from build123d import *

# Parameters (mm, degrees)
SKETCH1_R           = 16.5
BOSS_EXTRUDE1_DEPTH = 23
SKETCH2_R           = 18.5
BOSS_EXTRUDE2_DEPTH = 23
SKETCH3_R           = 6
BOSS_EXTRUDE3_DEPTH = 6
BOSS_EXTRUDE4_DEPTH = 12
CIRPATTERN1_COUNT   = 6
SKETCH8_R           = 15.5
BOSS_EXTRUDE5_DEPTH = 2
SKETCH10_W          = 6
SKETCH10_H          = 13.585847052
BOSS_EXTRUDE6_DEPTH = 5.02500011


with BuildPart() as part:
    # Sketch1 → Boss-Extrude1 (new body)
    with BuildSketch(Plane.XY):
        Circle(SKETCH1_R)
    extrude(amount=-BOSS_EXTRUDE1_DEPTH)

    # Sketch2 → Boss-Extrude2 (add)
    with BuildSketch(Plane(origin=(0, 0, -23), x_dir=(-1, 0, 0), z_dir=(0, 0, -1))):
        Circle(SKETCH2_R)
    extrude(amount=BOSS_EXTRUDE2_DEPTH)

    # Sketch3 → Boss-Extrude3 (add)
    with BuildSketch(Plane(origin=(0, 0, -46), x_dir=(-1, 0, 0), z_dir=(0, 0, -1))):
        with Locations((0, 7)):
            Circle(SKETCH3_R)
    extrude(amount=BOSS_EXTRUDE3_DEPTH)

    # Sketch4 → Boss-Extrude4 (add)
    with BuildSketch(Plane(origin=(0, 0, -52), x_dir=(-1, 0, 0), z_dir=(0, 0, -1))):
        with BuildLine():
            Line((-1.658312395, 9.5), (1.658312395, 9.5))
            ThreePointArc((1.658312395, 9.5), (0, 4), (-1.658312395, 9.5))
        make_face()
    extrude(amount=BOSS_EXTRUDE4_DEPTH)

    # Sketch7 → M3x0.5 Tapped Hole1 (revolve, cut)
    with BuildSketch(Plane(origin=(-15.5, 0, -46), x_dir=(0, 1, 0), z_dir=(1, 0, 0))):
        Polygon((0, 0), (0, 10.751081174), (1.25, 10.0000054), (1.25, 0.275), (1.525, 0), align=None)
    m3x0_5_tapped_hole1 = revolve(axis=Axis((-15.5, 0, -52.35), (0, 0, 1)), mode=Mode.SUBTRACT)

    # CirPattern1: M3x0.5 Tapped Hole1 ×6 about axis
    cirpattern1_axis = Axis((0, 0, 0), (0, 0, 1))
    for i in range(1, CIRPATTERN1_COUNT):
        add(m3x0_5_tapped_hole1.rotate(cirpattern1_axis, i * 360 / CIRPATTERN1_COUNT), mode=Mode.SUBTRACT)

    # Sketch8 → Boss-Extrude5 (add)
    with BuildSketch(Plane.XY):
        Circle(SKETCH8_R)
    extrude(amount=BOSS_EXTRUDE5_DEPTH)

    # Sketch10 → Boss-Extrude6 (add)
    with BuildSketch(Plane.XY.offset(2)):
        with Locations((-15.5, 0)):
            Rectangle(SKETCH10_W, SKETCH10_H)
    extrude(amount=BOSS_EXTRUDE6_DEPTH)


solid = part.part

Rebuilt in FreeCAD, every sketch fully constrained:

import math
import FreeCAD as App
import Part
import Sketcher

V = App.Vector
Q = App.Units.Quantity


def add_polygon(sketch, points):
    """Adds a closed chain of lines whose ends are joined by coincident constraints."""
    first, n = sketch.GeometryCount, len(points)
    for a, b in zip(points, points[1:] + points[:1]):
        sketch.addGeometry(Part.LineSegment(App.Vector(*a, 0), App.Vector(*b, 0)), False)
    for i in range(n):
        sketch.addConstraint(Sketcher.Constraint("Coincident", first + i, 2, first + (i + 1) % n, 1))

doc = App.newDocument("Part")
body = doc.addObject("PartDesign::Body", "Body")

sketch1 = body.newObject("Sketcher::SketchObject", "Sketch")
sketch1.AttachmentSupport = (doc.getObject("XY_Plane"), [""])
sketch1.MapMode = "FlatFace"
sketch1.addGeometry(Part.Circle(V(0, 0, 0), V(0, 0, 1), 16), False)
sketch1.addConstraint([
    Sketcher.Constraint("Coincident", 0, 3, -1, 1),
    Sketcher.Constraint("Diameter", 0, 33.0),
])
pad1 = body.newObject("PartDesign::Pad", "Pad")
pad1.Profile = sketch1
pad1.Length = 23
pad1.Reversed = True

sketch2 = body.newObject("Sketcher::SketchObject", "Sketch001")
sketch2.AttachmentSupport = (doc.getObject("XY_Plane"), [""])
sketch2.MapMode = "FlatFace"
sketch2.AttachmentOffset = App.Placement(V(0, 0, -23), App.Rotation())
sketch2.addGeometry(Part.Circle(V(0, 0, 0), V(0, 0, 1), 18), False)
sketch2.addConstraint([
    Sketcher.Constraint("Coincident", 0, 3, -1, 1),
    Sketcher.Constraint("Diameter", 0, 37.0),
])
pad2 = body.newObject("PartDesign::Pad", "Pad001")
pad2.Profile = sketch2
pad2.Length = 23
pad2.Reversed = True

sketch3 = body.newObject("Sketcher::SketchObject", "Sketch002")
sketch3.AttachmentSupport = (doc.getObject("XY_Plane"), [""])
sketch3.MapMode = "FlatFace"
sketch3.AttachmentOffset = App.Placement(V(0, 0, -46), App.Rotation())
sketch3.addGeometry(Part.Circle(V(0, 7, 0), V(0, 0, 1), 6), False)
sketch3.addConstraint([
    Sketcher.Constraint("PointOnObject", 0, 3, -2),
    Sketcher.Constraint("Diameter", 0, 12.0),
    Sketcher.Constraint("DistanceY", -1, 1, 0, 3, 7.0),
])
pad3 = body.newObject("PartDesign::Pad", "Pad002")
pad3.Profile = sketch3
pad3.Length = 6
pad3.Reversed = True

sketch4 = body.newObject("Sketcher::SketchObject", "Sketch003")
sketch4.AttachmentSupport = (doc.getObject("XY_Plane"), [""])
sketch4.MapMode = "FlatFace"
sketch4.AttachmentOffset = App.Placement(V(0, 0, -52), App.Rotation())
sketch4.addGeometry([
    Part.LineSegment(V(-1.7, 9.5, 0), V(1.7, 9.5, 0)),
    Part.ArcOfCircle(Part.Circle(V(0, 7, 0), V(0, 0, 1), 3), math.radians(124), math.radians(416)),
], False)
sketch4.addConstraint([
    Sketcher.Constraint("Coincident", 0, 1, 1, 1),
    Sketcher.Constraint("Coincident", 1, 2, 0, 2),
    Sketcher.Constraint("Horizontal", 0),
    Sketcher.Constraint("PointOnObject", 1, 3, -2),
    Sketcher.Constraint("Radius", 1, 3.0),
    Sketcher.Constraint("DistanceY", -1, 1, 1, 3, 7.0),
    Sketcher.Constraint("DistanceY", -1, 1, 0, 1, 9.5),
])
pad4 = body.newObject("PartDesign::Pad", "Pad003")
pad4.Profile = sketch4
pad4.Length = 12
pad4.Reversed = True

sketch5 = body.newObject("Sketcher::SketchObject", "Sketch004")
sketch5.AttachmentSupport = (doc.getObject("YZ_Plane"), [""])
sketch5.MapMode = "FlatFace"
sketch5.AttachmentOffset = App.Placement(V(0, 0, -15.5), App.Rotation())
add_polygon(sketch5, [(0, -35.25), (0, -46), (1.52, -46), (1.25, -45.73), (1.25, -36)])
sketch5.addConstraint([
    Sketcher.Constraint("Vertical", 0),
    Sketcher.Constraint("Horizontal", 1),
    Sketcher.Constraint("Vertical", 3),
    Sketcher.Constraint("PointOnObject", 0, 2, -2),
    Sketcher.Constraint("Angle", 2, Q("135 deg")),
    Sketcher.Constraint("Angle", 4, Q("149 deg")),
    Sketcher.Constraint("DistanceY", 0, 2, -1, 1, 46.0),
    Sketcher.Constraint("DistanceX", 1, 1, 1, 2, 1.525),
    Sketcher.Constraint("DistanceX", -1, 1, 2, 2, 1.25),
    Sketcher.Constraint("DistanceY", 0, 2, 0, 1, 10.751081),
])
groove = body.newObject("PartDesign::Groove", "Groove")
groove.Profile = sketch5
groove.ReferenceAxis = (sketch5, ["V_Axis"])
groove.Angle = 360
doc.recompute()

polarpattern = body.newObject("PartDesign::PolarPattern", "PolarPattern")
polarpattern.Originals = [groove]
polarpattern.Axis = (doc.getObject("Z_Axis"), [""])
polarpattern.Angle = 360
polarpattern.Occurrences = 6
body.Tip = polarpattern

sketch6 = body.newObject("Sketcher::SketchObject", "Sketch005")
sketch6.AttachmentSupport = (doc.getObject("XY_Plane"), [""])
sketch6.MapMode = "FlatFace"
sketch6.addGeometry(Part.Circle(V(0, 0, 0), V(0, 0, 1), 16), False)
sketch6.addConstraint([
    Sketcher.Constraint("Coincident", 0, 3, -1, 1),
    Sketcher.Constraint("Diameter", 0, 31.0),
])
pad5 = body.newObject("PartDesign::Pad", "Pad004")
pad5.Profile = sketch6
pad5.Length = 2

sketch7 = body.newObject("Sketcher::SketchObject", "Sketch006")
sketch7.AttachmentSupport = (doc.getObject("XY_Plane"), [""])
sketch7.MapMode = "FlatFace"
sketch7.AttachmentOffset = App.Placement(V(0, 0, 2), App.Rotation())
add_polygon(sketch7, [(-18, 7), (-18, -7), (-12, -7), (-12, 7)])
sketch7.addConstraint([
    Sketcher.Constraint("Vertical", 0),
    Sketcher.Constraint("Horizontal", 1),
    Sketcher.Constraint("Vertical", 2),
    Sketcher.Constraint("Horizontal", 3),
    Sketcher.Constraint("DistanceX", 1, 1, 1, 2, 6.0),
    Sketcher.Constraint("DistanceX", 0, 2, -1, 1, 18.5),
    Sketcher.Constraint("DistanceY", 0, 2, 0, 1, 13.585847),
    Sketcher.Constraint("DistanceY", 0, 2, -1, 1, 6.792924),
])
pad6 = body.newObject("PartDesign::Pad", "Pad005")
pad6.Profile = sketch7
pad6.Length = 5.025

doc.recompute()
